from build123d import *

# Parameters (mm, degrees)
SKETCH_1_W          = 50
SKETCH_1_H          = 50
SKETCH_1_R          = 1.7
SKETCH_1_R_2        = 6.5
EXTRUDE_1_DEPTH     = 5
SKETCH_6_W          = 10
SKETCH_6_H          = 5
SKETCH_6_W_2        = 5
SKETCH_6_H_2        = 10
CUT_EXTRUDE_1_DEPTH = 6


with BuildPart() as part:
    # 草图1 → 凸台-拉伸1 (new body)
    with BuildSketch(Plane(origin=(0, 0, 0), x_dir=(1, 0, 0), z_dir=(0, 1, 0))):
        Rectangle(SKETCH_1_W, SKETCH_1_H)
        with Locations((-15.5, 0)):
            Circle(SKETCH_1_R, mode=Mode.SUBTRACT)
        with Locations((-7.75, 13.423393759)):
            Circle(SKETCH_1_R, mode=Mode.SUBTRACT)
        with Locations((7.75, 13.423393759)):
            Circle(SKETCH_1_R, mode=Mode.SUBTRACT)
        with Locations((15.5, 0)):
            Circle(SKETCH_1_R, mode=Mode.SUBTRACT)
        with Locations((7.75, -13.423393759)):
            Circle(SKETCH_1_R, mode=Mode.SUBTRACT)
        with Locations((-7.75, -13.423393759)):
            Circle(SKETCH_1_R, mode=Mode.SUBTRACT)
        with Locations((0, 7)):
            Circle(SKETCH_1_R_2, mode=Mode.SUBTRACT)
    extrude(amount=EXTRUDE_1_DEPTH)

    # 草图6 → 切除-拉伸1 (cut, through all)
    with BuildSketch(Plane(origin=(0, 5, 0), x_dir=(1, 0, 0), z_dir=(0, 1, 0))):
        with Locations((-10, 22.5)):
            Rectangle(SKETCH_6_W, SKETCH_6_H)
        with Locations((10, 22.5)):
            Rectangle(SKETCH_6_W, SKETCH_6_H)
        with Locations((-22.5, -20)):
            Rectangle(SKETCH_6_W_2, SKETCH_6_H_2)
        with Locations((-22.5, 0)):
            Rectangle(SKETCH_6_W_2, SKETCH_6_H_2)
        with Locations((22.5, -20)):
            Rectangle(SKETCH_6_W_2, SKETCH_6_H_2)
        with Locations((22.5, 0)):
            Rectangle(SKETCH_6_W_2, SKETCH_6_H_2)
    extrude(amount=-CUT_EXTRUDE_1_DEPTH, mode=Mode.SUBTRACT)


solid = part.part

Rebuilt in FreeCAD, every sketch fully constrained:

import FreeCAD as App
import Part
import Sketcher
from FreeCAD import Vector
Q = App.Units.Quantity


def add_polygon(sketch, points):
    """Adds a closed chain of lines whose ends are joined by coincident constraints."""
    first, n = sketch.GeometryCount, len(points)
    for a, b in zip(points, points[1:] + points[:1]):
        sketch.addGeometry(Part.LineSegment(App.Vector(*a, 0), App.Vector(*b, 0)), False)
    for i in range(n):
        sketch.addConstraint(Sketcher.Constraint("Coincident", first + i, 2, first + (i + 1) % n, 1))

doc = App.newDocument("Part")
body = doc.addObject("PartDesign::Body", "Body")

# Sketch on XZ plane
sketch1 = body.newObject("Sketcher::SketchObject", "Sketch")
sketch1.AttachmentSupport = (doc.getObject("XZ_Plane"), [""])
sketch1.MapMode = "FlatFace"
add_polygon(sketch1, [(-25, -25), (-25, 25), (25, 25), (25, -25)])  # lines 0-3
sketch1.addGeometry(Part.Circle(Vector(-7.8, 13.4, 0), Vector(0, 0, 1), 1.7), False)  # 4
sketch1.addGeometry(Part.Circle(Vector(7.8, 13.4, 0), Vector(0, 0, 1), 1.7), False)  # 5
sketch1.addGeometry(Part.Circle(Vector(-15.5, 0, 0), Vector(0, 0, 1), 1.7), False)  # 6
sketch1.addGeometry(Part.Circle(Vector(-7.8, -13.4, 0), Vector(0, 0, 1), 1.7), False)  # 7
sketch1.addGeometry(Part.Circle(Vector(0, -7, 0), Vector(0, 0, 1), 6.5), False)  # 8
sketch1.addGeometry(Part.Circle(Vector(15.5, 0, 0), Vector(0, 0, 1), 1.7), False)  # 9
sketch1.addGeometry(Part.Circle(Vector(7.8, -13.4, 0), Vector(0, 0, 1), 1.7), False)  # 10
sketch1.addConstraint([
    Sketcher.Constraint("Vertical", 0),
    Sketcher.Constraint("Horizontal", 1),
    Sketcher.Constraint("Vertical", 2),
    Sketcher.Constraint("Horizontal", 3),
    Sketcher.Constraint("Equal", 4, 5),
    Sketcher.Constraint("Equal", 5, 6),
    Sketcher.Constraint("Equal", 6, 7),
    Sketcher.Constraint("Equal", 7, 9),
    Sketcher.Constraint("Equal", 9, 10),
    Sketcher.Constraint("Symmetric", 5, 3, 7, 3, -1, 1),
    Sketcher.Constraint("Symmetric", 6, 3, 9, 3, -1, 1),
    Sketcher.Constraint("Symmetric", 4, 3, 10, 3, -1, 1),
    Sketcher.Constraint("Symmetric", 0, 2, 2, 2, -1, 1),
    Sketcher.Constraint("Symmetric", 4, 3, 5, 3, -2),
    Sketcher.Constraint("PointOnObject", 6, 3, -1),
    Sketcher.Constraint("PointOnObject", 8, 3, -2),
    Sketcher.Constraint("Equal", 3, 0),
    Sketcher.Constraint("Diameter", 8, Q("13 mm")),
    Sketcher.Constraint("Diameter", 4, Q("3.4 mm")),
    Sketcher.Constraint("DistanceX", 1, 1, 1, 2, Q("50 mm")),
    Sketcher.Constraint("DistanceY", 8, 3, -1, 1, Q("7 mm")),
    Sketcher.Constraint("DistanceX", 6, 3, 9, 3, Q("31 mm")),
    Sketcher.Constraint("DistanceX", 4, 3, 5, 3, Q("15.5 mm")),
    Sketcher.Constraint("DistanceY", -1, 1, 4, 3, Q("13.423394 mm")),
])
pad1 = body.newObject("PartDesign::Pad", "Pad")
pad1.Profile = sketch1
pad1.Length = 5
pad1.Reversed = True

# Sketch on XZ plane
sketch2 = body.newObject("Sketcher::SketchObject", "Sketch001")
sketch2.AttachmentSupport = (doc.getObject("XZ_Plane"), [""])
sketch2.MapMode = "FlatFace"
sketch2.AttachmentOffset = App.Placement(Vector(0, 0, -5), App.Rotation())
add_polygon(sketch2, [(-15, -25), (-15, -20), (-5, -20), (-5, -25)])  # lines 0-3
add_polygon(sketch2, [(5, -25), (5, -20), (15, -20), (15, -25)])  # lines 4-7
add_polygon(sketch2, [(-25, 15), (-25, 25), (-20, 25), (-20, 15)])  # lines 8-11
add_polygon(sketch2, [(-25, -5), (-25, 5), (-20, 5), (-20, -5)])  # lines 12-15
add_polygon(sketch2, [(20, 15), (20, 25), (25, 25), (25, 15)])  # lines 16-19
add_polygon(sketch2, [(20, -5), (20, 5), (25, 5), (25, -5)])  # lines 20-23
sketch2.addConstraint([
    Sketcher.Constraint("Vertical", 0),
    Sketcher.Constraint("Horizontal", 1),
    Sketcher.Constraint("Vertical", 2),
    Sketcher.Constraint("Horizontal", 3),
    Sketcher.Constraint("Vertical", 4),
    Sketcher.Constraint("Horizontal", 5),
    Sketcher.Constraint("Vertical", 6),
    Sketcher.Constraint("Horizontal", 7),
    Sketcher.Constraint("Vertical", 8),
    Sketcher.Constraint("Horizontal", 9),
    Sketcher.Constraint("Vertical", 10),
    Sketcher.Constraint("Horizontal", 11),
    Sketcher.Constraint("Vertical", 12),
    Sketcher.Constraint("Horizontal", 13),
    Sketcher.Constraint("Vertical", 14),
    Sketcher.Constraint("Horizontal", 15),
    Sketcher.Constraint("Vertical", 16),
    Sketcher.Constraint("Horizontal", 17),
    Sketcher.Constraint("Vertical", 18),
    Sketcher.Constraint("Horizontal", 19),
    Sketcher.Constraint("Vertical", 20),
    Sketcher.Constraint("Horizontal", 21),
    Sketcher.Constraint("Vertical", 22),
    Sketcher.Constraint("Horizontal", 23),
    Sketcher.Constraint("Symmetric", 14, 2, 20, 2, -1, 1),
    Sketcher.Constraint("Symmetric", 12, 2, 22, 2, -1, 1),
    Sketcher.Constraint("Symmetric", 1, 2, 4, 2, -2),
    Sketcher.Constraint("Symmetric", 3, 2, 6, 2, -2),
    Sketcher.Constraint("Symmetric", 9, 2, 16, 2, -2),
    Sketcher.Constraint("Symmetric", 11, 2, 18, 2, -2),
    Sketcher.Constraint("Horizontal", 13, 2, 20, 2),
    Sketcher.Constraint("Vertical", 11, 2, 12, 2),
    Sketcher.Constraint("Vertical", 10, 2, 13, 2),
    Sketcher.Constraint("Equal", 23, 0),
    Sketcher.Constraint("Equal", 7, 8),
    Sketcher.Constraint("Equal", 10, 12),
    Sketcher.Constraint("DistanceX", 1, 1, 1, 2, Q("10 mm")),
    Sketcher.Constraint("DistanceX", 9, 1, 9, 2, Q("5 mm")),
    Sketcher.Constraint("DistanceX", 0, 2, -1, 1, Q("15 mm")),
    Sketcher.Constraint("DistanceY", 0, 2, -1, 1, Q("20 mm")),
    Sketcher.Constraint("DistanceX", 8, 2, -1, 1, Q("25 mm")),
    Sketcher.Constraint("DistanceY", -1, 1, 8, 2, Q("25 mm")),
])
pocket1 = body.newObject("PartDesign::Pocket", "Pocket")
pocket1.Profile = sketch2
pocket1.Type = "ThroughAll"
pocket1.Reversed = True

doc.recompute()
